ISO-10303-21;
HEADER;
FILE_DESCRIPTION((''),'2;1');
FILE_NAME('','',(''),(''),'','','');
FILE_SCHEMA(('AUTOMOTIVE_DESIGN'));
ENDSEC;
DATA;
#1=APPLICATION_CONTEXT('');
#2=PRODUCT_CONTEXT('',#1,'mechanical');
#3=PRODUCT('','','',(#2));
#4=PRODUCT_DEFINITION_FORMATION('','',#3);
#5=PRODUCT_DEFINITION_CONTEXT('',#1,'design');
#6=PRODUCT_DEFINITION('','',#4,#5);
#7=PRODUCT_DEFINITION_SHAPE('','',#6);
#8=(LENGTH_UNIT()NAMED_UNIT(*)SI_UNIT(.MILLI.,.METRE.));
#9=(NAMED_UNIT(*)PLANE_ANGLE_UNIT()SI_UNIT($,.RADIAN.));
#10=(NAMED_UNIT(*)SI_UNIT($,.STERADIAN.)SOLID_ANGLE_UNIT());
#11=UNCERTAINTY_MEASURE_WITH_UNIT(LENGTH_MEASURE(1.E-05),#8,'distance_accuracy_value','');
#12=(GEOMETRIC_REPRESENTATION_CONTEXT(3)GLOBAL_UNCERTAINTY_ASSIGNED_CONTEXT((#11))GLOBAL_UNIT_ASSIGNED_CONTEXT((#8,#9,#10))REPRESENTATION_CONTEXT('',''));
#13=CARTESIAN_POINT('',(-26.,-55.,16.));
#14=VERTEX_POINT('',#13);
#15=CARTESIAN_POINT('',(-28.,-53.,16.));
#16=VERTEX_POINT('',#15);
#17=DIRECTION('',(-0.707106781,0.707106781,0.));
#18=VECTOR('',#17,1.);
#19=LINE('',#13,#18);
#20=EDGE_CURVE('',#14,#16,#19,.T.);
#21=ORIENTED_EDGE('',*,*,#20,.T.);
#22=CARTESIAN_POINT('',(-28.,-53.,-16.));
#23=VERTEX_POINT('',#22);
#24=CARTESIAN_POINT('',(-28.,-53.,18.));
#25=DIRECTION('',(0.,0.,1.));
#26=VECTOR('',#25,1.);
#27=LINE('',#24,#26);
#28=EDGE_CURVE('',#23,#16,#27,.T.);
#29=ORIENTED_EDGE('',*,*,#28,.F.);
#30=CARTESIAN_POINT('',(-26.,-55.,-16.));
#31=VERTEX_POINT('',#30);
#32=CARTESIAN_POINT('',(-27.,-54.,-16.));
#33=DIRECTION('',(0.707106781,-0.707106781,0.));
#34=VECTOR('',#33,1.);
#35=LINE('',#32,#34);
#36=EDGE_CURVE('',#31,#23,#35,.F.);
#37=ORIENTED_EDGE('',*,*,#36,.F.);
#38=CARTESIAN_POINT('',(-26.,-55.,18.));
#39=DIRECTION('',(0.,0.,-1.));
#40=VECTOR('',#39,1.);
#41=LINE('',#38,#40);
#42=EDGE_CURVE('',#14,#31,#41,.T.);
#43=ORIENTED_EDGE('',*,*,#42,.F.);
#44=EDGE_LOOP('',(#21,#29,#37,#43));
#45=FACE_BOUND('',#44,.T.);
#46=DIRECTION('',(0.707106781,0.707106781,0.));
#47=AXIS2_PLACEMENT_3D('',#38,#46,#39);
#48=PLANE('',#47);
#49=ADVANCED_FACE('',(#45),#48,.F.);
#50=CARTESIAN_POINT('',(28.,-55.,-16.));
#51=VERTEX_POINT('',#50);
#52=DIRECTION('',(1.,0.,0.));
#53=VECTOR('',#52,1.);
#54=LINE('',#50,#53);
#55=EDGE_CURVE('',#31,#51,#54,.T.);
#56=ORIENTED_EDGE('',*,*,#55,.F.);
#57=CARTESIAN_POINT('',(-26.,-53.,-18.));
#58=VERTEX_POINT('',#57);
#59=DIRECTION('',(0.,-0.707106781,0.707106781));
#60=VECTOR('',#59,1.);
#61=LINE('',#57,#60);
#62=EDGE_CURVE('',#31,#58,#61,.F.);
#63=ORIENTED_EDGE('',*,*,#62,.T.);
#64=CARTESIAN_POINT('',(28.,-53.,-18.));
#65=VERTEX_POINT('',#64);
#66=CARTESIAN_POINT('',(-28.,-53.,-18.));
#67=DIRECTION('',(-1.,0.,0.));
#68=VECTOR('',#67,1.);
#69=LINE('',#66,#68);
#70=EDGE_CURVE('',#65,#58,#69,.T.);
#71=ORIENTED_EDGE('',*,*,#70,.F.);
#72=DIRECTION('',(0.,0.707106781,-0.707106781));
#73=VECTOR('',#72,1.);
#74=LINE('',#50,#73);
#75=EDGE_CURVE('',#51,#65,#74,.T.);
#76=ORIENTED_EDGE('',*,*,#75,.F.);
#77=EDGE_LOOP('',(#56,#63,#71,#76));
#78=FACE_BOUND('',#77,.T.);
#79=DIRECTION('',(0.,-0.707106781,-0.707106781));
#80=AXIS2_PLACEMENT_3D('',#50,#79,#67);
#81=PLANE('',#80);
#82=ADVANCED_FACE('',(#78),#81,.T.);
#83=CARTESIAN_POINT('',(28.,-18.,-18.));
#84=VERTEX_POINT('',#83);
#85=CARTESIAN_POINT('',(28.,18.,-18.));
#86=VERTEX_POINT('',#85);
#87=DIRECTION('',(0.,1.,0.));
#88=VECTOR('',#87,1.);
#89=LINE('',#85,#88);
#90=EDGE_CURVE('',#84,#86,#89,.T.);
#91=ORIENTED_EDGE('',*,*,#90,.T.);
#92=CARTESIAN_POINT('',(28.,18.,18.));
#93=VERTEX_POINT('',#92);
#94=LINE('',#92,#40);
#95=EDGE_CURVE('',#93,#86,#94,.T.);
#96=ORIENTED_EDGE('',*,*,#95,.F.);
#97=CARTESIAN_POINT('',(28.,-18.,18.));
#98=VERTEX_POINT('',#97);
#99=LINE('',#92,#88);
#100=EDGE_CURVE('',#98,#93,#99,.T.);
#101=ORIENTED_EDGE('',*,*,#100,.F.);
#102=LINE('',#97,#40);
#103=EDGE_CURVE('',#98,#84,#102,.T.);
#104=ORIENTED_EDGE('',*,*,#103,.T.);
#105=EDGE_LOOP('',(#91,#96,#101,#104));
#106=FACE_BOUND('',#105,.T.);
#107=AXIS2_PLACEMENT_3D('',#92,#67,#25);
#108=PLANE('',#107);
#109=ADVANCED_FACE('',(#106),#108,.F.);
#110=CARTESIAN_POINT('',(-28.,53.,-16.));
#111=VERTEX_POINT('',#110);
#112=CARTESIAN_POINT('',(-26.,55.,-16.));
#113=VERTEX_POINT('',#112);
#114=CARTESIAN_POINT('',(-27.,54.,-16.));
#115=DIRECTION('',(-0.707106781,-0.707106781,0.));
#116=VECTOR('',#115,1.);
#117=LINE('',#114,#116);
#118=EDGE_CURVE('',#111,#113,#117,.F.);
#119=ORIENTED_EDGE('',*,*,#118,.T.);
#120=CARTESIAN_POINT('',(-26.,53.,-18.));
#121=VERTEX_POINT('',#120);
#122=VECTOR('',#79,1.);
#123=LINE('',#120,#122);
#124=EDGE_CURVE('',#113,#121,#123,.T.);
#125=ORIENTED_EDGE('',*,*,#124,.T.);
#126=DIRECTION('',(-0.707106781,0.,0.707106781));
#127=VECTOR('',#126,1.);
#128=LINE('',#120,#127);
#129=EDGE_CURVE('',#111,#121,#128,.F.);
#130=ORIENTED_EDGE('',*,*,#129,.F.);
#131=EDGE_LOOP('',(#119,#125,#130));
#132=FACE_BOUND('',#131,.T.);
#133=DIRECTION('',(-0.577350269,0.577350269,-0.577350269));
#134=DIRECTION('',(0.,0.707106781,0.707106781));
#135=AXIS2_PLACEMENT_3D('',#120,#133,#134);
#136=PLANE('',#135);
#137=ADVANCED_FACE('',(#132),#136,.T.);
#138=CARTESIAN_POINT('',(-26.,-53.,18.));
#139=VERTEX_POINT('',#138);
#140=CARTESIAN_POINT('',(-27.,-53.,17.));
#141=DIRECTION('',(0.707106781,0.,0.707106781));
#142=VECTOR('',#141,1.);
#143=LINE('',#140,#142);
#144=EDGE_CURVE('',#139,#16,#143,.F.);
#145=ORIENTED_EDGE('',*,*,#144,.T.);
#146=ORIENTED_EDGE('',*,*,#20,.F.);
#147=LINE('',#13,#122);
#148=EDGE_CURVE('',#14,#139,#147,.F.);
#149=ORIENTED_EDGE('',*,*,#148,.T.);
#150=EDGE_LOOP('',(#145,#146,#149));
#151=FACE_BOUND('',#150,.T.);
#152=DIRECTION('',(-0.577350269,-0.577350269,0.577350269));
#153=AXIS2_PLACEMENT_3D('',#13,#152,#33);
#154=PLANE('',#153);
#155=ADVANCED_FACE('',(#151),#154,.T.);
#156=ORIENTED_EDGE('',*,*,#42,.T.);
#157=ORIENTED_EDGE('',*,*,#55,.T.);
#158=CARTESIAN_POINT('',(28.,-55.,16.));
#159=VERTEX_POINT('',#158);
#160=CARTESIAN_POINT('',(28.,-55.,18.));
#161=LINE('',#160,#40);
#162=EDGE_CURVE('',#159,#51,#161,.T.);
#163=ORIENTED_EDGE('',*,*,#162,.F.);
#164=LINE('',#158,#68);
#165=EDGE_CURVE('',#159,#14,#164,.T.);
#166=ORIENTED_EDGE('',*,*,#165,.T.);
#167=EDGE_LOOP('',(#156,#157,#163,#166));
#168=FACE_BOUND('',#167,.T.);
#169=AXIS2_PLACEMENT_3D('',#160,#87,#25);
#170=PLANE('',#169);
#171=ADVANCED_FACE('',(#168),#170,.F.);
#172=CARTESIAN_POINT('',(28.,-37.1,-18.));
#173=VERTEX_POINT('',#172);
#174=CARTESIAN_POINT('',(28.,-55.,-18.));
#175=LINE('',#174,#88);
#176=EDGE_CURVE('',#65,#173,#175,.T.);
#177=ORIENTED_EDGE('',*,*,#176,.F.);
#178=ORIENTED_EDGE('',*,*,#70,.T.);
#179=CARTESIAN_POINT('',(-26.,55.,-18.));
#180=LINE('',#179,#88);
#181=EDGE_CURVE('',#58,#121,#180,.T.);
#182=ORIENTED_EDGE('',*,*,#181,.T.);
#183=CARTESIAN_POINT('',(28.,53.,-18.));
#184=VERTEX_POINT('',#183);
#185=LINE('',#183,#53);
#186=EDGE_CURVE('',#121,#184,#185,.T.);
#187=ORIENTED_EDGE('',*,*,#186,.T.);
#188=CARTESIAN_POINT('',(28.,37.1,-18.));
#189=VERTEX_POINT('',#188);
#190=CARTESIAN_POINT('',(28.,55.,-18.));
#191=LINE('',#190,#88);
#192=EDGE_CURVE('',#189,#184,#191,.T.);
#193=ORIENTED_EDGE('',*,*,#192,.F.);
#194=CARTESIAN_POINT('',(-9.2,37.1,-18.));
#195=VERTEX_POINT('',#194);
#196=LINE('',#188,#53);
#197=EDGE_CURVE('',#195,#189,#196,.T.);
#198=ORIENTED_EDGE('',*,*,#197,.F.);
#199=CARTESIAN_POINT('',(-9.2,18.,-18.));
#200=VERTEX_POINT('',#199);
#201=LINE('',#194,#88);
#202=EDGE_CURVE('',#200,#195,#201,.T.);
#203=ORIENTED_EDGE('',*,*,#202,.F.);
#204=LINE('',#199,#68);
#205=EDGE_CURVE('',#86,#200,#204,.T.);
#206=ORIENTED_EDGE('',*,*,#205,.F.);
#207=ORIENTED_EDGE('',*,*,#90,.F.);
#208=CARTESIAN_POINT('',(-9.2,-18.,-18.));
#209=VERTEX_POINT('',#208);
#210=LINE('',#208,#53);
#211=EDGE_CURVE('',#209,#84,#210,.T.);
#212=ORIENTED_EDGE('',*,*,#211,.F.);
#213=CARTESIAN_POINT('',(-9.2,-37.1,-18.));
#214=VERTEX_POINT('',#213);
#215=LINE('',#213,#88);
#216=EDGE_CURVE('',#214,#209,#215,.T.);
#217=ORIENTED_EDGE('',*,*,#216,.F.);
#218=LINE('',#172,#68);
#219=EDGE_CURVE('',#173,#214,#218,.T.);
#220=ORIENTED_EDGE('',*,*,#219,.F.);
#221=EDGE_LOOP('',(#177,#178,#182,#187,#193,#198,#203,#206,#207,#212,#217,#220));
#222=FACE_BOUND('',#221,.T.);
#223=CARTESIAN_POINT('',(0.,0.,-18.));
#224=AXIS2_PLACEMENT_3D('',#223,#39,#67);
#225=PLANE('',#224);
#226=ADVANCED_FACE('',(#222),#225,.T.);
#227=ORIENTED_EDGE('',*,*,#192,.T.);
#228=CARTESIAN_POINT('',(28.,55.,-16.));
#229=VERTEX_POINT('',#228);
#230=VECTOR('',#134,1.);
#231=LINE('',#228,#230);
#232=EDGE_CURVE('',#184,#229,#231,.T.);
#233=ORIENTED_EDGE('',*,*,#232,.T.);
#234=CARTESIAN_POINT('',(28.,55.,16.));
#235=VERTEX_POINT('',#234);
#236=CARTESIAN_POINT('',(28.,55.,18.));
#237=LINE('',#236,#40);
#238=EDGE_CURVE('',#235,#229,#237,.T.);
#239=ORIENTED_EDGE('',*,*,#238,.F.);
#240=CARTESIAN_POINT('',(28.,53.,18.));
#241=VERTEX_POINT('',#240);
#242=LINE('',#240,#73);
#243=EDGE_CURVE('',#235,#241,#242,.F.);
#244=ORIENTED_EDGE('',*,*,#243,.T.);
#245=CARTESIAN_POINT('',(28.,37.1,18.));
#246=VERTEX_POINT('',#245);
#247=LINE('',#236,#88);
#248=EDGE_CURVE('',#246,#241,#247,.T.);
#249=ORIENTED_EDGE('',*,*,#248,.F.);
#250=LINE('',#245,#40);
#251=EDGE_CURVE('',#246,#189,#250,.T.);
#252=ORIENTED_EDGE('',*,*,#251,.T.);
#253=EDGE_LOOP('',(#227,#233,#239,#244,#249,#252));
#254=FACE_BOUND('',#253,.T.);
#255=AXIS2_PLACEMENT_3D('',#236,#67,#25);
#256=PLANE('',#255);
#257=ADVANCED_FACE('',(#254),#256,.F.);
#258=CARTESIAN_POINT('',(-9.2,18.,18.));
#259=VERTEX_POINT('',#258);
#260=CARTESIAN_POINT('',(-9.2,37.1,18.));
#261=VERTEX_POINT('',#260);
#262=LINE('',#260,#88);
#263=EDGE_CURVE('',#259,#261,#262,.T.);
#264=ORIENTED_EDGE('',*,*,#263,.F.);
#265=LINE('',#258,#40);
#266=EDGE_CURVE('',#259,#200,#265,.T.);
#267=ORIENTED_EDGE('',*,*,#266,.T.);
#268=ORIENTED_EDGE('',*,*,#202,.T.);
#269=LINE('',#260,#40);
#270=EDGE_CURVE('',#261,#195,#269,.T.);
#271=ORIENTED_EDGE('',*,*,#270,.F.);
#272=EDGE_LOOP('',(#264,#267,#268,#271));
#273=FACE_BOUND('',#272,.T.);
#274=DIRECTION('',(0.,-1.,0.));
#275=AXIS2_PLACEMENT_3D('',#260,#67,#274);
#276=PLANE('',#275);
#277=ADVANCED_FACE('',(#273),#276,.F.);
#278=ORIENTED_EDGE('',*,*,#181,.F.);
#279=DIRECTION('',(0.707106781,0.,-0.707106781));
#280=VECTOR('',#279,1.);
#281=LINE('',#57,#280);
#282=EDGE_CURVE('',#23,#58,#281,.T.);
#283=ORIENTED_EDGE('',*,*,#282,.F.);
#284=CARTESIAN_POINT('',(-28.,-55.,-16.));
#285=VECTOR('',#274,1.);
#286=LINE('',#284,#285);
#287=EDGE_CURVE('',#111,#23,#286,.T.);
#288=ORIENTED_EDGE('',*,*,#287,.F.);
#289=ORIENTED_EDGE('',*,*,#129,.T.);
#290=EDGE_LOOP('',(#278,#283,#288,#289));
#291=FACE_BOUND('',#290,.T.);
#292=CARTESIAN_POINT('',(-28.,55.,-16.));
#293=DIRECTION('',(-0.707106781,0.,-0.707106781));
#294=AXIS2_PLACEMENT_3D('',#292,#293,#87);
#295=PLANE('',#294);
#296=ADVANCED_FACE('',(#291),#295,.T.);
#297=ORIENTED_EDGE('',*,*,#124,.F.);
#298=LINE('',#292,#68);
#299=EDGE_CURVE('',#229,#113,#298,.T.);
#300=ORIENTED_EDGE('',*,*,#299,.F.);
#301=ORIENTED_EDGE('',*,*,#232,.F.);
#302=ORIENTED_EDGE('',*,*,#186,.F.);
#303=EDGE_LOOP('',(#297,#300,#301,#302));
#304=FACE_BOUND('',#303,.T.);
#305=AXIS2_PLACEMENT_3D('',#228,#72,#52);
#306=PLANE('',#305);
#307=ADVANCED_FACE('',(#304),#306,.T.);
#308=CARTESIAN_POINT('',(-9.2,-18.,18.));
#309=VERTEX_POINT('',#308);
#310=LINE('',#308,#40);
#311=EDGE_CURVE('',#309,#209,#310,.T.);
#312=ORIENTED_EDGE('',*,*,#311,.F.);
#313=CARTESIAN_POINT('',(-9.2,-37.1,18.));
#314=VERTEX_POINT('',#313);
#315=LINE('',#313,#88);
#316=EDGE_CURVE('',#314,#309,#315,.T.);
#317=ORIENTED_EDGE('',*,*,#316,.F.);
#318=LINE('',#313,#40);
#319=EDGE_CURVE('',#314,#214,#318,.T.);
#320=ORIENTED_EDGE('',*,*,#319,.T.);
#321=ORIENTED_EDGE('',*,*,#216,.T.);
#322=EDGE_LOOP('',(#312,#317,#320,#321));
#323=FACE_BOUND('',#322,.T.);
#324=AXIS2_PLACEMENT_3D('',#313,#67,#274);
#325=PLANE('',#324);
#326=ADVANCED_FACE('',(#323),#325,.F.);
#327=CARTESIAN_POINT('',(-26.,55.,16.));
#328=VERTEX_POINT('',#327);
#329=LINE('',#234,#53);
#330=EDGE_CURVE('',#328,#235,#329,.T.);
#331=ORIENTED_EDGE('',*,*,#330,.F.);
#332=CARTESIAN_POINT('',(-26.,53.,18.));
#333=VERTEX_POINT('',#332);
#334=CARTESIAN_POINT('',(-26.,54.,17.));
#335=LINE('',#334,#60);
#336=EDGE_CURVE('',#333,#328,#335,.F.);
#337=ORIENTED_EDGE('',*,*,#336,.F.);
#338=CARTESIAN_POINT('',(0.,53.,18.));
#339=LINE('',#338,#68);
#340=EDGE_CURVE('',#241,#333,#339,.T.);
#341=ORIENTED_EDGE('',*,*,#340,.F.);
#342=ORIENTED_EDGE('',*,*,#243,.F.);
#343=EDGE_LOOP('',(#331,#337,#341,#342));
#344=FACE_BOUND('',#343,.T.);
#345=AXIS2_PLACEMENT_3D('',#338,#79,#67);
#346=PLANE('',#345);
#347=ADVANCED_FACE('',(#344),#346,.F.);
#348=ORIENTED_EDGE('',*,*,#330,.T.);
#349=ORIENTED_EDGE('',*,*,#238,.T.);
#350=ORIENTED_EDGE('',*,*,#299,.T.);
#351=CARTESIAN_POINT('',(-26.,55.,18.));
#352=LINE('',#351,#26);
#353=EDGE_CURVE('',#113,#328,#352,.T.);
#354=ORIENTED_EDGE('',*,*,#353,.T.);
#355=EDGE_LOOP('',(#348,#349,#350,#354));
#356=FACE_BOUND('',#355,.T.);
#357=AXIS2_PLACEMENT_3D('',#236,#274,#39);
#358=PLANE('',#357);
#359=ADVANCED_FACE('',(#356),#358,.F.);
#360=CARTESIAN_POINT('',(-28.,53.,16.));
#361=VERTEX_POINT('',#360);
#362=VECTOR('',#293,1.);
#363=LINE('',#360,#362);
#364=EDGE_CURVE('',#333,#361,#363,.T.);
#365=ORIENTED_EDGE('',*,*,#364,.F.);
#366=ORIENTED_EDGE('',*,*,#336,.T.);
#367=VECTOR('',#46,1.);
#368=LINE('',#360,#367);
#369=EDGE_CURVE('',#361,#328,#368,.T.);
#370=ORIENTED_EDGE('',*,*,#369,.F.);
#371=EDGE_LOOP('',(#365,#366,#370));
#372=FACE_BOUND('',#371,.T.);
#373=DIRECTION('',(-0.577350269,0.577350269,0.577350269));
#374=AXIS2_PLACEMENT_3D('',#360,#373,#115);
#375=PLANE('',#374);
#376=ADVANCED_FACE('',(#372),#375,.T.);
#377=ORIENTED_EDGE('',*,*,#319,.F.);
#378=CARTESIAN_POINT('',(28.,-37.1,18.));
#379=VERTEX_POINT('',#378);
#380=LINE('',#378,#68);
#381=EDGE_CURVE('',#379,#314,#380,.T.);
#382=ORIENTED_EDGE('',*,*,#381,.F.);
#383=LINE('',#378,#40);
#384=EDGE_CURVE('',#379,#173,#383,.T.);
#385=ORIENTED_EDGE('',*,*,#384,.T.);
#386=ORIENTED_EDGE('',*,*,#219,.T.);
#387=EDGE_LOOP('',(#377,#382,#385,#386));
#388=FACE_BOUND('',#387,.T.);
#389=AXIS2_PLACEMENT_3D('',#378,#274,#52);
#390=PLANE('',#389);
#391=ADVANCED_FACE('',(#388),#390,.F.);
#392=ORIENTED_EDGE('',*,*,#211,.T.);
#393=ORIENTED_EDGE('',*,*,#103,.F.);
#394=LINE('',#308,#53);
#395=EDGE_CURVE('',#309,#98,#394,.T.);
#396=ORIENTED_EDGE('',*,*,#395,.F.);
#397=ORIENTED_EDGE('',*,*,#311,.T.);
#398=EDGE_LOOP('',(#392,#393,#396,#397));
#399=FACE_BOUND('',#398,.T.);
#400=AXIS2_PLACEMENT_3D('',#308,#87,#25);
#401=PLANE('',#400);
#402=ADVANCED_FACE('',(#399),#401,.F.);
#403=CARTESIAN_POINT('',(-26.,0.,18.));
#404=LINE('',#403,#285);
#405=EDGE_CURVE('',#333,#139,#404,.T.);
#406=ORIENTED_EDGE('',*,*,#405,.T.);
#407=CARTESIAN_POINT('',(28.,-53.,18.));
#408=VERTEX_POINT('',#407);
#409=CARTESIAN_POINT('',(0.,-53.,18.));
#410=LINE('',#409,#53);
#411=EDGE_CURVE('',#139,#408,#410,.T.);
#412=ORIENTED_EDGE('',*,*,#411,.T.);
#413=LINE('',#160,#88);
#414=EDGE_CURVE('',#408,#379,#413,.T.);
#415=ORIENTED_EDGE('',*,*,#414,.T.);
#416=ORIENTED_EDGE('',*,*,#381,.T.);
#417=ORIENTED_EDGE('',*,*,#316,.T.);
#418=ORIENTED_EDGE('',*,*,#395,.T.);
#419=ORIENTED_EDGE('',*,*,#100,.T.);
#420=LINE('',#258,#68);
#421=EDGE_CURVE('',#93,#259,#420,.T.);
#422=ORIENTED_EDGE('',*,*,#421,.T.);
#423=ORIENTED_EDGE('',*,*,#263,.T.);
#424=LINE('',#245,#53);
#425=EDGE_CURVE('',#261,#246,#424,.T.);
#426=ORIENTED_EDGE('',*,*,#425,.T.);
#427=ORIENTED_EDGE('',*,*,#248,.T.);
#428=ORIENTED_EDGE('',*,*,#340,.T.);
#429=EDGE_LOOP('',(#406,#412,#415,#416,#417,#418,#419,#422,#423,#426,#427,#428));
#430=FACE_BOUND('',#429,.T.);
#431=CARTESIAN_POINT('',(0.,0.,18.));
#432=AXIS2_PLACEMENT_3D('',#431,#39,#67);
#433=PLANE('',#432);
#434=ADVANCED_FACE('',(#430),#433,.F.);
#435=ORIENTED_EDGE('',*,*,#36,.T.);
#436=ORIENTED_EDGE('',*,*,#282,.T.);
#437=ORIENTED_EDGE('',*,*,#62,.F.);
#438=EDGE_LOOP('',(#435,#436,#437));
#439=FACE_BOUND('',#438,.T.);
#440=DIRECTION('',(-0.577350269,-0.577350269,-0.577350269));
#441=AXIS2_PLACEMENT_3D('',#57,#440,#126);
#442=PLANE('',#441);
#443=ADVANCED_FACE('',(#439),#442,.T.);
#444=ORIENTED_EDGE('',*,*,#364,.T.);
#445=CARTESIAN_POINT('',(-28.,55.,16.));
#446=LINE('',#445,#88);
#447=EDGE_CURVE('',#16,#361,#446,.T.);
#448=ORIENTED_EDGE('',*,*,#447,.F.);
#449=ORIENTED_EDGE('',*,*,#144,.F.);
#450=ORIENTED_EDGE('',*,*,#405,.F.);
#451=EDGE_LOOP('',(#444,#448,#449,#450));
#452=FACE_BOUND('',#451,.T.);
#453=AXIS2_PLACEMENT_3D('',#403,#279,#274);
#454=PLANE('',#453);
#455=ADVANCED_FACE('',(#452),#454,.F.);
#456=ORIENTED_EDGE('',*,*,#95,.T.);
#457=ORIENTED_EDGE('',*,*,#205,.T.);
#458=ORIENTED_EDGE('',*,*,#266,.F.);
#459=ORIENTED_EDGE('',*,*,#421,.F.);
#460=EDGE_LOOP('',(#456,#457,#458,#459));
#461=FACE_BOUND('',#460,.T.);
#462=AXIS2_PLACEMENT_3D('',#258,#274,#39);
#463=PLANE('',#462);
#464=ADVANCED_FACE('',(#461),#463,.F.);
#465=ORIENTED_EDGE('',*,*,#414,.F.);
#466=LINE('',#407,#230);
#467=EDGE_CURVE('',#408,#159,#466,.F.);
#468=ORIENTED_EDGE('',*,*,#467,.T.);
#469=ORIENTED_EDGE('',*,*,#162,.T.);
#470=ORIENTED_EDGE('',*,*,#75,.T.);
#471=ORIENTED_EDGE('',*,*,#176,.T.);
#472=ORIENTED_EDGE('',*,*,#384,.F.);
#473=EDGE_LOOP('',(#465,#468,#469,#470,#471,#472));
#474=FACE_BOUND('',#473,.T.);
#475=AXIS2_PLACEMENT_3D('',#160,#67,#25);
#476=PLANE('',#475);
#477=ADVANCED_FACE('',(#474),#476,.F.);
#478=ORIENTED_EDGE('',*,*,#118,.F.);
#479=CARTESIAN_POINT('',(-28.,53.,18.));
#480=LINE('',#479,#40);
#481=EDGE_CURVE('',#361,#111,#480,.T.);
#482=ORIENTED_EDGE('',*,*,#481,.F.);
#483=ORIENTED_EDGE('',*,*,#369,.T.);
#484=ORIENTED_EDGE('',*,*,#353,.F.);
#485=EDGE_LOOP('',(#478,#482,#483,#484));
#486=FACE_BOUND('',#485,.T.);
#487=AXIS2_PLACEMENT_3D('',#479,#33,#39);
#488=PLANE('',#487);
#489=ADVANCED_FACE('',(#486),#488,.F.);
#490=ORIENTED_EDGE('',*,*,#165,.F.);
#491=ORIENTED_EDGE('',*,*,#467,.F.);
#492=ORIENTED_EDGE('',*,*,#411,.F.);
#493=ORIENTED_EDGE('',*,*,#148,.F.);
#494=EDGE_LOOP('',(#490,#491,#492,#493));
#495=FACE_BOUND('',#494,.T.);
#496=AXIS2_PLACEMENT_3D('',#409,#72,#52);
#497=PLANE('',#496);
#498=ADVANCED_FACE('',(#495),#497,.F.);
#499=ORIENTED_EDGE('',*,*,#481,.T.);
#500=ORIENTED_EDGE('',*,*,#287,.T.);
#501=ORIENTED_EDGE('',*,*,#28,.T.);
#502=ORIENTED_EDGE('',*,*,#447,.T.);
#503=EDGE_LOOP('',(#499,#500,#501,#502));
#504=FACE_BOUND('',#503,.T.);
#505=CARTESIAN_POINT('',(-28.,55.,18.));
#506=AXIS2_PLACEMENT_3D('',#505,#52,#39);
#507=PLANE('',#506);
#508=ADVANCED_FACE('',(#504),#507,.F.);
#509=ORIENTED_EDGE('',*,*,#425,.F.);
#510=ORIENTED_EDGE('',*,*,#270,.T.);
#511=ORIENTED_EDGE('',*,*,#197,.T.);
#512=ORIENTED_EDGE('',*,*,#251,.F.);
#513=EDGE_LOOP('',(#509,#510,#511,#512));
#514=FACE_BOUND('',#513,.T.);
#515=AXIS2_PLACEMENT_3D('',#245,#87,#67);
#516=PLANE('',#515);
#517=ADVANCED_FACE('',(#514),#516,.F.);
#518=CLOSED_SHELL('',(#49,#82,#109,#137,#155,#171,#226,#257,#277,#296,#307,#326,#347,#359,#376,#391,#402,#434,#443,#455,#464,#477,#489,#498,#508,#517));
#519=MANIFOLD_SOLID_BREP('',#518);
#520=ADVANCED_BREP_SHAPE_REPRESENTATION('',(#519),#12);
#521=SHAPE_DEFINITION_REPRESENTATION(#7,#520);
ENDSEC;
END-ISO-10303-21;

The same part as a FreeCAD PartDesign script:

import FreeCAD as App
import Part
import Sketcher

V = App.Vector
Q = App.Units.Quantity


def edges_at(feature, points):
    """Names of the edges that pass closest to the given points."""
    edges = feature.Shape.Edges
    near = lambda p: min(range(len(edges)), key=lambda i: edges[i].distToShape(Part.Vertex(*p))[0])
    return sorted({f"Edge{near(p) + 1}" for p in points})


def add_polygon(sketch, points):
    """Adds a closed chain of lines whose ends are joined by coincident constraints."""
    first, n = sketch.GeometryCount, len(points)
    for a, b in zip(points, points[1:] + points[:1]):
        sketch.addGeometry(Part.LineSegment(App.Vector(*a, 0), App.Vector(*b, 0)), False)
    for i in range(n):
        sketch.addConstraint(Sketcher.Constraint("Coincident", first + i, 2, first + (i + 1) % n, 1))

doc = App.newDocument("Part")
body = doc.addObject("PartDesign::Body", "Body")

sketch1 = doc.addObject("Sketcher::SketchObject", "Sketch")
body.addObject(sketch1)
sketch1.AttachmentSupport = (doc.XY_Plane, [""])
sketch1.MapMode = "FlatFace"
add_polygon(sketch1, [(28, 55), (-28, 55), (-28, -55), (28, -55), (28, -37), (-9, -37), (-9, -18), (28, -18), (28, 18), (-9, 18), (-9, 37), (28, 37)])
sketch1.addConstraint(Sketcher.Constraint("Horizontal", 0))
sketch1.addConstraint(Sketcher.Constraint("Vertical", 1))
sketch1.addConstraint(Sketcher.Constraint("Horizontal", 2))
sketch1.addConstraint(Sketcher.Constraint("Vertical", 3))
sketch1.addConstraint(Sketcher.Constraint("Horizontal", 4))
sketch1.addConstraint(Sketcher.Constraint("Vertical", 5))
sketch1.addConstraint(Sketcher.Constraint("Horizontal", 6))
sketch1.addConstraint(Sketcher.Constraint("Vertical", 7))
sketch1.addConstraint(Sketcher.Constraint("Horizontal", 8))
sketch1.addConstraint(Sketcher.Constraint("Vertical", 9))
sketch1.addConstraint(Sketcher.Constraint("Horizontal", 10))
sketch1.addConstraint(Sketcher.Constraint("Vertical", 11))
sketch1.addConstraint(Sketcher.Constraint("Symmetric", 0, 2, 2, 2, -1, 1))
sketch1.addConstraint(Sketcher.Constraint("Symmetric", 5, 2, 8, 2, -1))
sketch1.addConstraint(Sketcher.Constraint("Symmetric", 3, 2, 10, 2, -1))
sketch1.addConstraint(Sketcher.Constraint("Vertical", 3, 2, 6, 2))
sketch1.addConstraint(Sketcher.Constraint("DistanceX", 0, 2, 0, 1, Q("56 mm")))
sketch1.addConstraint(Sketcher.Constraint("DistanceY", 1, 2, 1, 1, Q("110 mm")))
sketch1.addConstraint(Sketcher.Constraint("DistanceY", 7, 1, 7, 2, Q("36 mm")))
sketch1.addConstraint(Sketcher.Constraint("DistanceX", 4, 2, 4, 1, Q("37.2 mm")))
sketch1.addConstraint(Sketcher.Constraint("DistanceY", 3, 1, 3, 2, Q("17.9 mm")))
pad1 = doc.addObject("PartDesign::Pad", "Pad")
body.addObject(pad1)
pad1.Profile = sketch1
pad1.Length = 36
pad1.Midplane = True
doc.recompute()

chamfer = doc.addObject("PartDesign::Chamfer", "Chamfer")
body.addObject(chamfer)
chamfer.Base = (pad1, edges_at(pad1, [
    (-28, 0, 18),
    (0, -55, -18),
    (-28, 0, -18),
    (0, 55, -18),
    (0, -55, 18),
    (-28, -55, 0),
    (-28, 55, 0),
    (0, 55, 18),
]))
chamfer.Size = 2

doc.recompute()
